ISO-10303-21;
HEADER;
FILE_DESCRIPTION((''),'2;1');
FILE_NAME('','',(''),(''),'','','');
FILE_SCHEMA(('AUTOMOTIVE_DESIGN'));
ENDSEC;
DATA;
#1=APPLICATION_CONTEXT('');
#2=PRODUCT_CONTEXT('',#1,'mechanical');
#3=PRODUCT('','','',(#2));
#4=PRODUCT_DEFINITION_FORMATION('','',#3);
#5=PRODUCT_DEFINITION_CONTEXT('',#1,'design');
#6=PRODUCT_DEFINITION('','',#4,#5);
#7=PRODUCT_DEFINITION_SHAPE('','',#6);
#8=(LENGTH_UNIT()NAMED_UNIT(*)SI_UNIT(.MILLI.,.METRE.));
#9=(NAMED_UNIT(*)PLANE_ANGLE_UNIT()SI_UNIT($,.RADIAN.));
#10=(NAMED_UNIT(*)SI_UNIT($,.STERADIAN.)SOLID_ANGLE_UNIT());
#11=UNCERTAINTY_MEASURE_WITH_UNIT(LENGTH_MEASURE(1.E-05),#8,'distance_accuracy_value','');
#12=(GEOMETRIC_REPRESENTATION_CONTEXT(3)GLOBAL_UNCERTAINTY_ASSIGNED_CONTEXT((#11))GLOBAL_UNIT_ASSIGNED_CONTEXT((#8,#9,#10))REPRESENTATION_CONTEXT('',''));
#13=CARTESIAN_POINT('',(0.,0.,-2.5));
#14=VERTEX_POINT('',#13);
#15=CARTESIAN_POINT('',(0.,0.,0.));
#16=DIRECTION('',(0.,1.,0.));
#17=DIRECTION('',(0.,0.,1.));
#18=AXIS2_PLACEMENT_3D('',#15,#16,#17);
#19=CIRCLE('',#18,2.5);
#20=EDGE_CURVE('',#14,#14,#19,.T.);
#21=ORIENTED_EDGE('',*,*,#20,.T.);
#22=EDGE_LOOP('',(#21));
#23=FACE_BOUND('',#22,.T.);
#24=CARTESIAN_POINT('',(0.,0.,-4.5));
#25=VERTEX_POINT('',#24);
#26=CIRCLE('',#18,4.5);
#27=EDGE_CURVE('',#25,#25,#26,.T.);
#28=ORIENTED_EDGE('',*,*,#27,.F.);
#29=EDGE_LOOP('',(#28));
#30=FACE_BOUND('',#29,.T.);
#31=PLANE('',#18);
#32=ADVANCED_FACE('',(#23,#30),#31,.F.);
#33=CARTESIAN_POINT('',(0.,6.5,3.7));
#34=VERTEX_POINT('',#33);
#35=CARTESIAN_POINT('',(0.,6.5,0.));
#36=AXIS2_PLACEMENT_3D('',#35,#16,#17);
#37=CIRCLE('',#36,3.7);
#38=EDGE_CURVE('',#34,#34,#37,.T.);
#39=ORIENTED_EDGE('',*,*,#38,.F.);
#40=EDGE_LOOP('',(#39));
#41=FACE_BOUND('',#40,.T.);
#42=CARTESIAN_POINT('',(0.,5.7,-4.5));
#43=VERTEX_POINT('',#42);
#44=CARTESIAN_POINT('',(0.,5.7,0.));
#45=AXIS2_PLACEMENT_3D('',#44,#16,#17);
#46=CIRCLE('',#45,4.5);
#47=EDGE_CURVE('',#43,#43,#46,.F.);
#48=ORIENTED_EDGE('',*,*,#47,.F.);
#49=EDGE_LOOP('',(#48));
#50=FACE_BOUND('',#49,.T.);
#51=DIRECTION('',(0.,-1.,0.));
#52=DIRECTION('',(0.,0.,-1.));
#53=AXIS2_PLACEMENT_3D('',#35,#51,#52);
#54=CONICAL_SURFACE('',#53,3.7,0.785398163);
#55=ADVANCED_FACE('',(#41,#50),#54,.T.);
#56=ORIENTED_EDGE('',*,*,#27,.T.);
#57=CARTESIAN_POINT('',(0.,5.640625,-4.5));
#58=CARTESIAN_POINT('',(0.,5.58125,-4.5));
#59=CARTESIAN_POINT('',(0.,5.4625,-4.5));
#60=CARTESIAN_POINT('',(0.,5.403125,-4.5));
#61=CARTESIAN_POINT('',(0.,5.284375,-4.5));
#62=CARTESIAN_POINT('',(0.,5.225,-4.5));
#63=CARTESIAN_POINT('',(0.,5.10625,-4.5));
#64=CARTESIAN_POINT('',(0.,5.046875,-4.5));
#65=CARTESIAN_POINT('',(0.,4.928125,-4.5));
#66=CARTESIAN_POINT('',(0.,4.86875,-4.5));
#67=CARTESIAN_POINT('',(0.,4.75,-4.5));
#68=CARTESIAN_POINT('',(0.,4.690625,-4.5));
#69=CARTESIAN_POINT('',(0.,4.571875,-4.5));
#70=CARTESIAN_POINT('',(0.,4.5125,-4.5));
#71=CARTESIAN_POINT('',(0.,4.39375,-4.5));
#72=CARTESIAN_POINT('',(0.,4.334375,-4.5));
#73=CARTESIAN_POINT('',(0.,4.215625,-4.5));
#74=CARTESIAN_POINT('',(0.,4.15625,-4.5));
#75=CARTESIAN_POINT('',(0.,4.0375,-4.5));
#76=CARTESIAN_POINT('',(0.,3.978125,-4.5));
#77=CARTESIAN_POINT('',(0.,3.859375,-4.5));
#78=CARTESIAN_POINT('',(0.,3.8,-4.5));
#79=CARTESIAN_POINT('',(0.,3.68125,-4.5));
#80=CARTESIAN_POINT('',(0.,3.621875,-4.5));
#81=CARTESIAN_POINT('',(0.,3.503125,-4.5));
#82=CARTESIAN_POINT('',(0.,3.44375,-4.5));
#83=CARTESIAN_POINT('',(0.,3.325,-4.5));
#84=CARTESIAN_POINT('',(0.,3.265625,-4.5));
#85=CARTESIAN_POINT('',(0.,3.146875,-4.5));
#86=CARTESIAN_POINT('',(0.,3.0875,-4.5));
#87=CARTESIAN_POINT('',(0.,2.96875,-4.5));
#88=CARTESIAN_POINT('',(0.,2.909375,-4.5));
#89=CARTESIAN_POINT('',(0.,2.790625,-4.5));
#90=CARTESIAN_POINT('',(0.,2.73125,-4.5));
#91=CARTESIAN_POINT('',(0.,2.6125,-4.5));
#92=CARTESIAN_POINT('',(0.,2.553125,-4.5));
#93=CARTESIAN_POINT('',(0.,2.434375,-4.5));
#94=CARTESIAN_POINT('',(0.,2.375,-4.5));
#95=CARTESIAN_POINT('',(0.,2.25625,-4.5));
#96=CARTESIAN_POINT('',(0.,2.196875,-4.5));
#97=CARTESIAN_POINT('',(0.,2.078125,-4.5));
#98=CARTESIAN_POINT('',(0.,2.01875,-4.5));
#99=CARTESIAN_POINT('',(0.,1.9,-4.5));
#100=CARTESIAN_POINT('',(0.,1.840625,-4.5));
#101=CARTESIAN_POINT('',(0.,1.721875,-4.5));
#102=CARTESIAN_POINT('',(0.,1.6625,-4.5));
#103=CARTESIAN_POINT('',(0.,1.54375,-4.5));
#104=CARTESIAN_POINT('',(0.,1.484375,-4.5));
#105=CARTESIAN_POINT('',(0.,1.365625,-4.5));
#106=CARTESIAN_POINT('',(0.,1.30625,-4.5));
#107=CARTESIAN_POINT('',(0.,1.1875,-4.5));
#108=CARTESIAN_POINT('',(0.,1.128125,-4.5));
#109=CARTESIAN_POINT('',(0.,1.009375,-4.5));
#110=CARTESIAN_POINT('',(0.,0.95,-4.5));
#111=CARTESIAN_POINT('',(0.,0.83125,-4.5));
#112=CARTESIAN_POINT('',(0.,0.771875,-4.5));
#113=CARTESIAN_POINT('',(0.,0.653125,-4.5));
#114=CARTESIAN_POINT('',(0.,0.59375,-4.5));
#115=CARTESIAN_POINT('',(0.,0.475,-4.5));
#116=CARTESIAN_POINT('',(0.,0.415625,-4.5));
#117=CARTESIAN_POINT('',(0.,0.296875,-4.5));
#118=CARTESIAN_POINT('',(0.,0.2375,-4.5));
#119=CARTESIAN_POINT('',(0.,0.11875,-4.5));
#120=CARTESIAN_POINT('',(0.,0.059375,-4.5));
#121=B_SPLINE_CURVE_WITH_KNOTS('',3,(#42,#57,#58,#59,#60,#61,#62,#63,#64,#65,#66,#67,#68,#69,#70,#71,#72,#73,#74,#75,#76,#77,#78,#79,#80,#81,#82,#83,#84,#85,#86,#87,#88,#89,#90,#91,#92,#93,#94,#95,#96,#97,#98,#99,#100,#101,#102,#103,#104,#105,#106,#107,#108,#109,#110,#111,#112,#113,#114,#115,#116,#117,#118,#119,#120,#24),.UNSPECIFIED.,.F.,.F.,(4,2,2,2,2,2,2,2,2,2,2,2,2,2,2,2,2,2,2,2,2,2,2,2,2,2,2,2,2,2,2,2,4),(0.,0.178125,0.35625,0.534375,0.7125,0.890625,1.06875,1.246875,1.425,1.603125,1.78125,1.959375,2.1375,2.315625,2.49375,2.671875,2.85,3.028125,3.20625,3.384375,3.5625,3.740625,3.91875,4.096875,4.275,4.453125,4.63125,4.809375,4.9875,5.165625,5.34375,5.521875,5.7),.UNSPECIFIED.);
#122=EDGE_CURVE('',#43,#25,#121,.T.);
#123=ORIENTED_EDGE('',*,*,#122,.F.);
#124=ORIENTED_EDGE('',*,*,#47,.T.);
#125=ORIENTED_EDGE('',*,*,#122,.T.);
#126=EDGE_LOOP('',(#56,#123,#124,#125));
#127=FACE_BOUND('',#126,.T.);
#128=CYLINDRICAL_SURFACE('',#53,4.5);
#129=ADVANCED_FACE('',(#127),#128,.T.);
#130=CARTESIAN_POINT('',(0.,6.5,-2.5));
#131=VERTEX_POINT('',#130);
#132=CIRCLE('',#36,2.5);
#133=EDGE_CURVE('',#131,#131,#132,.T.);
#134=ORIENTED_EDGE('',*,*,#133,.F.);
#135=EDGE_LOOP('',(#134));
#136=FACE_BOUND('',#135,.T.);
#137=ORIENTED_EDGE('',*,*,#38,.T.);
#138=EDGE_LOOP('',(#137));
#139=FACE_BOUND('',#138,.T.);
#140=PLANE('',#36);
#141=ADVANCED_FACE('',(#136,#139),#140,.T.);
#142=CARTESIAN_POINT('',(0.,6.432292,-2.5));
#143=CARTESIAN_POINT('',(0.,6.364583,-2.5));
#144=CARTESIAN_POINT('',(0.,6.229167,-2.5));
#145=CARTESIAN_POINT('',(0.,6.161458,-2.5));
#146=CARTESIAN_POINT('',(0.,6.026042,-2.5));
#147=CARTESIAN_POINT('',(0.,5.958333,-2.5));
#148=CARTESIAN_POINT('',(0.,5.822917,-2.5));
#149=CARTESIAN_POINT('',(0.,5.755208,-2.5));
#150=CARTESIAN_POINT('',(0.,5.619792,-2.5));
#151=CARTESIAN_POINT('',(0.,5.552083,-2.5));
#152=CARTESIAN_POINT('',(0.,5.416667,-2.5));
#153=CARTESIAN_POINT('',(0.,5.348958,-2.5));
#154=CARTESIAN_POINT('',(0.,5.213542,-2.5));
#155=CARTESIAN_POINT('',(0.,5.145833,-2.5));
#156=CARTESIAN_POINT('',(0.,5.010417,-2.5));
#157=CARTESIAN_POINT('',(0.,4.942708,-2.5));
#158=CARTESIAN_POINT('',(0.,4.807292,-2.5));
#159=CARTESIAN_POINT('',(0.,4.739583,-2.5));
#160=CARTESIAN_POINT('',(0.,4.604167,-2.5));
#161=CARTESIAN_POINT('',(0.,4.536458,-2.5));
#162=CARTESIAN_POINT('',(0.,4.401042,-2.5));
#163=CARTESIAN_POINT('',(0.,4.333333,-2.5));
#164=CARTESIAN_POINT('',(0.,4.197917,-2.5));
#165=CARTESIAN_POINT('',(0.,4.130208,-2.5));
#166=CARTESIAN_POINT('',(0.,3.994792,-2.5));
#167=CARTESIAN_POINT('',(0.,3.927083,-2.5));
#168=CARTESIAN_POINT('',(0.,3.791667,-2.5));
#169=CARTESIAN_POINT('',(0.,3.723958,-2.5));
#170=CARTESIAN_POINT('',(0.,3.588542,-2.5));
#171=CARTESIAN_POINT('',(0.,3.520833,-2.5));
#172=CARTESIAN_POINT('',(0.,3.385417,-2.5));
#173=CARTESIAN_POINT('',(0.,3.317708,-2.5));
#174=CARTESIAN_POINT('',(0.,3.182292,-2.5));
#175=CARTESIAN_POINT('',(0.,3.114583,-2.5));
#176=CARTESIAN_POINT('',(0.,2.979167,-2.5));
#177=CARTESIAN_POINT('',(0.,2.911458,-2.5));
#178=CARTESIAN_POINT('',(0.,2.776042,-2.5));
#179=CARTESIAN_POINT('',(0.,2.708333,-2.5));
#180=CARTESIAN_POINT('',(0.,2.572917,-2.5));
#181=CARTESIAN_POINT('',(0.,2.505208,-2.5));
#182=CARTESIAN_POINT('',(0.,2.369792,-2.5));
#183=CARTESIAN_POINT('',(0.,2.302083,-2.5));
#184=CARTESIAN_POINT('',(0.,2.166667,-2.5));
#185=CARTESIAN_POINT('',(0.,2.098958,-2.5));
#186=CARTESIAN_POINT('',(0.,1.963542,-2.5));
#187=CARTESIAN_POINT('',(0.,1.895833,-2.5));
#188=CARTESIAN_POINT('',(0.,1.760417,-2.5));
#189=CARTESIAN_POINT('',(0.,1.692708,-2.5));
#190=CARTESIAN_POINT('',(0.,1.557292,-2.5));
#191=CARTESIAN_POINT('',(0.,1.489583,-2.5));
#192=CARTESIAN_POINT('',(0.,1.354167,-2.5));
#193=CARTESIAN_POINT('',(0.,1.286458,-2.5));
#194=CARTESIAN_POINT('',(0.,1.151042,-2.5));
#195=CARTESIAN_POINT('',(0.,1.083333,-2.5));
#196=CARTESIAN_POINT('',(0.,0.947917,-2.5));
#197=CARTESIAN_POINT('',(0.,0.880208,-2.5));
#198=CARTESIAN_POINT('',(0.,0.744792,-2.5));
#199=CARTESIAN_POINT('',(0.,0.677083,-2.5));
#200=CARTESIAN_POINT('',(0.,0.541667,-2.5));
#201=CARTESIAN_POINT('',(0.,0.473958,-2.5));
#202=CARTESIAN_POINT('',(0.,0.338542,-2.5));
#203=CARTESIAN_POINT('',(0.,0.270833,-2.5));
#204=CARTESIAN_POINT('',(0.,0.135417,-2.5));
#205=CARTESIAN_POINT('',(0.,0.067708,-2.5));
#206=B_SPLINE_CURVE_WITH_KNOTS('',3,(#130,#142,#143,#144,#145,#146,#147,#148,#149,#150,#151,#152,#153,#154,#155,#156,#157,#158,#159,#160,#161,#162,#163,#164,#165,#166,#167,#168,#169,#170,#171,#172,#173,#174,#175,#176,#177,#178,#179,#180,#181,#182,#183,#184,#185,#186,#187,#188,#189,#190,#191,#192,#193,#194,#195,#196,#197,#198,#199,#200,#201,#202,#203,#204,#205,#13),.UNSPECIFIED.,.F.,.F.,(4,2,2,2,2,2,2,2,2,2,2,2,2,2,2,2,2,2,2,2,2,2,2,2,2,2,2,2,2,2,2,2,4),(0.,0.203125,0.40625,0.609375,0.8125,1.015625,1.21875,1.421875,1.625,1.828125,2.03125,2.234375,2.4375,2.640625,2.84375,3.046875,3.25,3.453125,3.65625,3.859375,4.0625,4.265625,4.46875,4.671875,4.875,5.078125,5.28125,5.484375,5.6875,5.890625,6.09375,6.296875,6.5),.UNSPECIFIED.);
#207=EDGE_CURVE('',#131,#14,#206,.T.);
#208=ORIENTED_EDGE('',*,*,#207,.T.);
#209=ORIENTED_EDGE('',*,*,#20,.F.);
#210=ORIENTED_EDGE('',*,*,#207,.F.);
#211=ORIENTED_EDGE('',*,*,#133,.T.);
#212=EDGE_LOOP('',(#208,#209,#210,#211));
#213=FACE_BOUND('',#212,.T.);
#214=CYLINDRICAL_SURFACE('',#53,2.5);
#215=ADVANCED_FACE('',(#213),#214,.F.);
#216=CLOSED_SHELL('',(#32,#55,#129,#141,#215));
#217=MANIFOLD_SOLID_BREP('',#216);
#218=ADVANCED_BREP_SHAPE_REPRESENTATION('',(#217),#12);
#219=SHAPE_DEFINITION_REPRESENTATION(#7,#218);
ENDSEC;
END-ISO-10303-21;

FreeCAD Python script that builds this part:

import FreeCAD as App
import Part
import Sketcher
from FreeCAD import Vector
Q = App.Units.Quantity


def edges_at(feature, points):
    """Names of the edges that pass closest to the given points."""
    edges = feature.Shape.Edges
    near = lambda p: min(range(len(edges)), key=lambda i: edges[i].distToShape(Part.Vertex(*p))[0])
    return sorted({f"Edge{near(p) + 1}" for p in points})

doc = App.newDocument("Part")
body = doc.addObject("PartDesign::Body", "Body")

# Sketch on XZ plane
sketch1 = body.newObject("Sketcher::SketchObject", "Sketch")
sketch1.AttachmentSupport = (doc.getObject("XZ_Plane"), [""])
sketch1.MapMode = "FlatFace"
sketch1.addGeometry([
    Part.Circle(Vector(0, 0, 0), Vector(0, 0, 1), 4.5),
    Part.Circle(Vector(0, 0, 0), Vector(0, 0, 1), 2.5),
], False)
sketch1.addConstraint([
    Sketcher.Constraint("Coincident", 0, 3, -1, 1),
    Sketcher.Constraint("Coincident", 1, 3, -1, 1),
    Sketcher.Constraint("Diameter", 0, Q("9 mm")),
    Sketcher.Constraint("Diameter", 1, Q("5 mm")),
])
pad1 = body.newObject("PartDesign::Pad", "Pad")
pad1.Profile = sketch1
pad1.Length = 6.5
pad1.Reversed = True
doc.recompute()

chamfer = body.newObject("PartDesign::Chamfer", "Chamfer")
chamfer.Base = (pad1, edges_at(pad1, [(0, 6.5, 4.5)]))
chamfer.Size = 0.8

doc.recompute()
